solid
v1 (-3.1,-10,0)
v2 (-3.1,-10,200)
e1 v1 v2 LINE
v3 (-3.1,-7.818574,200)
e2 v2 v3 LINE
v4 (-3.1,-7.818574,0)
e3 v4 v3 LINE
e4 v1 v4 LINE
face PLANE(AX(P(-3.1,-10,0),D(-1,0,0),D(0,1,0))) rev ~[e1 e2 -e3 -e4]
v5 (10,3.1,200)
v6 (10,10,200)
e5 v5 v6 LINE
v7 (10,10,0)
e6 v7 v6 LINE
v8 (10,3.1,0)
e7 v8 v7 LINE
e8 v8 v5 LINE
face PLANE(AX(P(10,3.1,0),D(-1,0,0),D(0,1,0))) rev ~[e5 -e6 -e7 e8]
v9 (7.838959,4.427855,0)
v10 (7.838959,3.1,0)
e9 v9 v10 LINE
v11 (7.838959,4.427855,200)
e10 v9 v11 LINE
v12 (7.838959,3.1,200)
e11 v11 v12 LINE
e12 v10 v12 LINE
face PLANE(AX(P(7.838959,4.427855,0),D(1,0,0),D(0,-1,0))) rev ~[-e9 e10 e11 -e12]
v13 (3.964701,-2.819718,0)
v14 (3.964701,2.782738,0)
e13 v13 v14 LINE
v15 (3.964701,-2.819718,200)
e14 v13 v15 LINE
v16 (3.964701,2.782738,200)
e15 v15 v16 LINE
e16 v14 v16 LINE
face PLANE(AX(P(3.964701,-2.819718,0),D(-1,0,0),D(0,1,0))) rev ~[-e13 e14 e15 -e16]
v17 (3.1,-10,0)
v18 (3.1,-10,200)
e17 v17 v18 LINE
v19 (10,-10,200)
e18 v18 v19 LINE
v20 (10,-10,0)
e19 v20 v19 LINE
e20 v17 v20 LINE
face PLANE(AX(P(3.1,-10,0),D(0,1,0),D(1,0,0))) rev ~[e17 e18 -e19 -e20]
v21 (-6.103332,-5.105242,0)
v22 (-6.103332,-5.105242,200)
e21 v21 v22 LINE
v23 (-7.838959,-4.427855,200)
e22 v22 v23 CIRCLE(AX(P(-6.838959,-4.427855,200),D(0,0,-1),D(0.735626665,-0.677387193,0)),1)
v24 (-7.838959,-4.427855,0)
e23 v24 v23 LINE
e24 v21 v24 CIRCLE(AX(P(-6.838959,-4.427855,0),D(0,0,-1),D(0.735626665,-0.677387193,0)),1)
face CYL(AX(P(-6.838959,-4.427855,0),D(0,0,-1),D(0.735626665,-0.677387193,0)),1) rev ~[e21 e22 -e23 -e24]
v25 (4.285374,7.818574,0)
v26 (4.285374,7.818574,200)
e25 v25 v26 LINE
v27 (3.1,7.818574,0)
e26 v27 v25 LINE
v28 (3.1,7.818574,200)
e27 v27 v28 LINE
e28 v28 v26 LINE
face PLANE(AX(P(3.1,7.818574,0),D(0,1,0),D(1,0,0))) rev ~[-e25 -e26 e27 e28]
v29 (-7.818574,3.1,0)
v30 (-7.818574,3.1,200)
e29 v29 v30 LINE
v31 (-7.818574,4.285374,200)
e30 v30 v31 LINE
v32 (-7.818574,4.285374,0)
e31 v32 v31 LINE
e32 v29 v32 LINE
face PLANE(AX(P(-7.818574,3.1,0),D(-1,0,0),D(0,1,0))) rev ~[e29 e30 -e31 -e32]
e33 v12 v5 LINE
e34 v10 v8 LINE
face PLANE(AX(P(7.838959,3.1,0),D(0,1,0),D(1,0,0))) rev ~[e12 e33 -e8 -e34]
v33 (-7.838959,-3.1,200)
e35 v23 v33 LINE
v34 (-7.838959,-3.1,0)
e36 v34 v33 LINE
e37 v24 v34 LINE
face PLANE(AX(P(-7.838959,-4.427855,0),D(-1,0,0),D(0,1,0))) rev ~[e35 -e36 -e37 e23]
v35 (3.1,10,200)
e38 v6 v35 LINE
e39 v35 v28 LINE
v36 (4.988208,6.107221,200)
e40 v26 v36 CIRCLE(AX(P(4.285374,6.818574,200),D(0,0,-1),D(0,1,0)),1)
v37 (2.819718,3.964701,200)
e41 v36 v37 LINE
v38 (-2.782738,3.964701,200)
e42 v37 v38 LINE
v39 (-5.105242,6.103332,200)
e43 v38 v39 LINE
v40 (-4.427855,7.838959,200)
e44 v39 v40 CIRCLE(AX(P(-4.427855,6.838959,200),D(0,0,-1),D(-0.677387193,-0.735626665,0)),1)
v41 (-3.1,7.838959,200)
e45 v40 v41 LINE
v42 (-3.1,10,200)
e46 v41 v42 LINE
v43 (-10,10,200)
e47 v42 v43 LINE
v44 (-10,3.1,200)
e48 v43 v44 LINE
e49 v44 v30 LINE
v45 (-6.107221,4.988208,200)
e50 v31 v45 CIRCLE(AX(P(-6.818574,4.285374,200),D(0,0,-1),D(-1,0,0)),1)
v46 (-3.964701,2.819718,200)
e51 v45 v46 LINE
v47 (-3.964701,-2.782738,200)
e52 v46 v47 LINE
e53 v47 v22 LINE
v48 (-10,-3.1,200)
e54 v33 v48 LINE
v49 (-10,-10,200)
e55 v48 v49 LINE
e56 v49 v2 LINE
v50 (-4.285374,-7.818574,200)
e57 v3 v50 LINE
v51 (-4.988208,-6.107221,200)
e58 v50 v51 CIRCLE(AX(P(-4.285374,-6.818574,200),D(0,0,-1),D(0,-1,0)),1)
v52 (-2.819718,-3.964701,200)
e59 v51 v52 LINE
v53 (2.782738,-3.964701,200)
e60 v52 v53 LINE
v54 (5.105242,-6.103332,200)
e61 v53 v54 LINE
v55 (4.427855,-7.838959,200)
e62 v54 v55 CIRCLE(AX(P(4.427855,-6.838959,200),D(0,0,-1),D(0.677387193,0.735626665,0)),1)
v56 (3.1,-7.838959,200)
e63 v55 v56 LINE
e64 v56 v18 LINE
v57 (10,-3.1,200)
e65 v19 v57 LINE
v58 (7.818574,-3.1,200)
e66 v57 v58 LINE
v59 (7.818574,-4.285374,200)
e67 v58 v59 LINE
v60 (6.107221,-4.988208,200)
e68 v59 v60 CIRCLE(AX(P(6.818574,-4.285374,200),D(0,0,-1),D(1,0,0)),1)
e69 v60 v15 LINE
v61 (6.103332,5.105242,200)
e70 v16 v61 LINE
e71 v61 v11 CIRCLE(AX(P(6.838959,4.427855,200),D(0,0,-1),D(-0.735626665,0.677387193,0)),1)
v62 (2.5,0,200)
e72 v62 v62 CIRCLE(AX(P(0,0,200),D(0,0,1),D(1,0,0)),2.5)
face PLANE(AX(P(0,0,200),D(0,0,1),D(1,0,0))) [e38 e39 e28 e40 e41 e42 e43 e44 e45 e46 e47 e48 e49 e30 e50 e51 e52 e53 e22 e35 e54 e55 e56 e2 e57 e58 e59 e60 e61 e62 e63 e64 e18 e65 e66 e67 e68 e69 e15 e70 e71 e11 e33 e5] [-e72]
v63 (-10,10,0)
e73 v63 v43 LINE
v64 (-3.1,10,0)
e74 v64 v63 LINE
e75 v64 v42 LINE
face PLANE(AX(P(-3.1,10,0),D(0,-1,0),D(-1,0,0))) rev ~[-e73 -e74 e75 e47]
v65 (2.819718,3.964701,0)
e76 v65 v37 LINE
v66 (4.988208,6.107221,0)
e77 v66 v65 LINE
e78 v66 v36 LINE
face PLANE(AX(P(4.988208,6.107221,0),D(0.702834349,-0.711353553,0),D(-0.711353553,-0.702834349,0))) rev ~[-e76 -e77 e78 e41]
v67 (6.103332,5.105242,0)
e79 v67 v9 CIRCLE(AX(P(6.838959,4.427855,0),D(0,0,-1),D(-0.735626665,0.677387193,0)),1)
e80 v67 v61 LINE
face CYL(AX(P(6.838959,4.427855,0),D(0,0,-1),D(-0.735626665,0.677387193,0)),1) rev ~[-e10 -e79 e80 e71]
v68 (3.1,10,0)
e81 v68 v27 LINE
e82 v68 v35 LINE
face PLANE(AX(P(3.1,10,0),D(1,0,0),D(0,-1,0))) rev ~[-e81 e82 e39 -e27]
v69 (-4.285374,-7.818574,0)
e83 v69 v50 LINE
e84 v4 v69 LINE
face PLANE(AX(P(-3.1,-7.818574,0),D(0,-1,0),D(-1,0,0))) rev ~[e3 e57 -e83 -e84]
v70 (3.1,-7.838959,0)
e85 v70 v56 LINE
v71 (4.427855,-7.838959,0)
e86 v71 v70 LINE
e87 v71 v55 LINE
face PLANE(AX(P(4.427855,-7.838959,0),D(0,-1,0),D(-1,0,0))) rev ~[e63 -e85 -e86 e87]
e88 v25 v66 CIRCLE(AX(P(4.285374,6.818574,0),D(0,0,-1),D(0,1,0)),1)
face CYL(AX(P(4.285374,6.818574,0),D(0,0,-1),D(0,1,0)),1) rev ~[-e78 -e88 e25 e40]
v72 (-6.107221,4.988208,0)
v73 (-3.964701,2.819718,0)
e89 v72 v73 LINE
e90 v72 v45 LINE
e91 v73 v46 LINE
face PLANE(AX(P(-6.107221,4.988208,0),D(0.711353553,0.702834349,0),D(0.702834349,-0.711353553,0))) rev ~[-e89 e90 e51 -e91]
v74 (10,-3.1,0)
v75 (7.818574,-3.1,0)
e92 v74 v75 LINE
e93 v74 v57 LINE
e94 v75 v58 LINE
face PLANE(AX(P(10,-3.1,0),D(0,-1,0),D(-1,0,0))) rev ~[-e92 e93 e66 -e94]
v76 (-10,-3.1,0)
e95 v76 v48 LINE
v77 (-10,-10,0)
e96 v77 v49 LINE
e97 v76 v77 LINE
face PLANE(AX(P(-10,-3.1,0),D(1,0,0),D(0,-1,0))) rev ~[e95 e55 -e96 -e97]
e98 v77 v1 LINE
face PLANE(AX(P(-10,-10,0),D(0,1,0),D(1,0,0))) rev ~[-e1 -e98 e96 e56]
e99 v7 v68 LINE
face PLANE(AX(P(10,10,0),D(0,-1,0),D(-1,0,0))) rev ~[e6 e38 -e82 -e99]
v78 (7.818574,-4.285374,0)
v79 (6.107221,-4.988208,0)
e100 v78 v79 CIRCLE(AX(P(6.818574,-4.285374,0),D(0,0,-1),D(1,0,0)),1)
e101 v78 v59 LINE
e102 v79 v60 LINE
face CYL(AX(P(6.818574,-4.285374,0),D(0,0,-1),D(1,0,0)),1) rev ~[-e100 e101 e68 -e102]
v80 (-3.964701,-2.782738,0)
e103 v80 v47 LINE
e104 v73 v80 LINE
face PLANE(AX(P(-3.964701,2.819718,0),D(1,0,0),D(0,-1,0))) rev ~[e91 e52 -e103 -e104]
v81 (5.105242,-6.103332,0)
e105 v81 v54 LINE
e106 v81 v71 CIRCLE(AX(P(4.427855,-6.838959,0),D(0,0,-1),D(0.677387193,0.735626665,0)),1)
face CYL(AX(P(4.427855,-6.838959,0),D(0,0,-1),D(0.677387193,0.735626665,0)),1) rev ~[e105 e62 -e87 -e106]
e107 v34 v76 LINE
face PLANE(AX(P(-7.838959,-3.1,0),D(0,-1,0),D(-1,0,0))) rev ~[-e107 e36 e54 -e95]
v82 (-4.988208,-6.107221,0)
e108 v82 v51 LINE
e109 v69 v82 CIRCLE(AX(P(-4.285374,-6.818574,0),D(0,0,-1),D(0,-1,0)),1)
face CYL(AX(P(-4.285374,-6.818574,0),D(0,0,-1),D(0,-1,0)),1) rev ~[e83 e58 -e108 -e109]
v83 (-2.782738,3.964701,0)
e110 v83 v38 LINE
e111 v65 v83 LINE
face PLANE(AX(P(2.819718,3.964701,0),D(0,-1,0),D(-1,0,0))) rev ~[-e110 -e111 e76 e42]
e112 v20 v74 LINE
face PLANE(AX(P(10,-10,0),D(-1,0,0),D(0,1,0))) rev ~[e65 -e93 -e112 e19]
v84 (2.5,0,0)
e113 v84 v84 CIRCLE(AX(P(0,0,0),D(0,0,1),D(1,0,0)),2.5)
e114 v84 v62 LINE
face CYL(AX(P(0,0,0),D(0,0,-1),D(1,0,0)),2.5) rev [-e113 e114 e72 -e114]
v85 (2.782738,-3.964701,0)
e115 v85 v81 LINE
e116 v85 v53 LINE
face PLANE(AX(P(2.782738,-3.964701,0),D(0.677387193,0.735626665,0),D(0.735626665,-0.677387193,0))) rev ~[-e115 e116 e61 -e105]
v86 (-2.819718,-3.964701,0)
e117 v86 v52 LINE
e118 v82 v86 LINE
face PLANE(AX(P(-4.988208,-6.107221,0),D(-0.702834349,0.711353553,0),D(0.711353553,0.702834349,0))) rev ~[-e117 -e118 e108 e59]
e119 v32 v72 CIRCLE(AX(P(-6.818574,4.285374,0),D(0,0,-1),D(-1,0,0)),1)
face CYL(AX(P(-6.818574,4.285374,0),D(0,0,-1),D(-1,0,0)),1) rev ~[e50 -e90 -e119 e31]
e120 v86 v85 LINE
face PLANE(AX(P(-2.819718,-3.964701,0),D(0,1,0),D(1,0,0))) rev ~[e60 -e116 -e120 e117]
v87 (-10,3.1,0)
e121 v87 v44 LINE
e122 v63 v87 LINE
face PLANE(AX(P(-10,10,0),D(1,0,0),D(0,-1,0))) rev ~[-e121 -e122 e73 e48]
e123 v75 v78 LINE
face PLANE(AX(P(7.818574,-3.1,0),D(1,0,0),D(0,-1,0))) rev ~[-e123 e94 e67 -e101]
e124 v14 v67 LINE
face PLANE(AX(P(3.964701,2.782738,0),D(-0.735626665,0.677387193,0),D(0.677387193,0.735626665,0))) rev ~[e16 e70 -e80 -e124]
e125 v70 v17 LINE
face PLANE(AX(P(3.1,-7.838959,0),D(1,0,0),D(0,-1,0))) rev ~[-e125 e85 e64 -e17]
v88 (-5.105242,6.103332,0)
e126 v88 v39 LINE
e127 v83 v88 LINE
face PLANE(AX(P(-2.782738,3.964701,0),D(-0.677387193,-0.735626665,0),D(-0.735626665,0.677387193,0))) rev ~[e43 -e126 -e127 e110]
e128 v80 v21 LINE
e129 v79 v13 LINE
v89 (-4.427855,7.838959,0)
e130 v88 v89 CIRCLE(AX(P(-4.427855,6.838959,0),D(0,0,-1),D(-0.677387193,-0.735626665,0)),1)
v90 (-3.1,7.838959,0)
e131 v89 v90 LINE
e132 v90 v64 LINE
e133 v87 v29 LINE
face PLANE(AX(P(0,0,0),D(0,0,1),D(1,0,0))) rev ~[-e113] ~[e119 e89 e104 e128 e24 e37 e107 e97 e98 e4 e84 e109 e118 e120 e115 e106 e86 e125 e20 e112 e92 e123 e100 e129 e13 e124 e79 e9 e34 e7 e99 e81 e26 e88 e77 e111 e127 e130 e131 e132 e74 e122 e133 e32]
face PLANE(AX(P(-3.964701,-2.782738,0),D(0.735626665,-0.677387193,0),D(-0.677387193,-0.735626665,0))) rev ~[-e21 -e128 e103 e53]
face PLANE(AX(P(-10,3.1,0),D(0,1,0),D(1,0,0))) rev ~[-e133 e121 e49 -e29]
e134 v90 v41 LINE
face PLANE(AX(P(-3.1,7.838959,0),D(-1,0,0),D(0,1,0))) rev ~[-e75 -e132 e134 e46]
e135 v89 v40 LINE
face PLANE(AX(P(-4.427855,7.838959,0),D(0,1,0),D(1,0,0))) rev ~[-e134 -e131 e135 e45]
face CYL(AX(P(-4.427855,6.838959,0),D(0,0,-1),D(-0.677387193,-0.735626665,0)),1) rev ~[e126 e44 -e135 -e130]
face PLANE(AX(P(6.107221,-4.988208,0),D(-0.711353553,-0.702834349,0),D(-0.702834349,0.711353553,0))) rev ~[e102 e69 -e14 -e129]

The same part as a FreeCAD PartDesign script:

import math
import FreeCAD as App
import Part
import Sketcher
from FreeCAD import Vector

doc = App.newDocument("Part")
body = doc.addObject("PartDesign::Body", "Body")

sketch1 = doc.addObject("Sketcher::SketchObject", "Sketch")
body.addObject(sketch1)
sketch1.AttachmentSupport = (doc.XY_Plane, [""])
sketch1.MapMode = "FlatFace"
sketch1.addGeometry(Part.LineSegment(Vector(-10, -10, 0), Vector(-3.1, -10, 0)), False)
sketch1.addGeometry(Part.LineSegment(Vector(-3.1, -10, 0), Vector(-3.1, -7.818574, 0)), False)
sketch1.addGeometry(Part.LineSegment(Vector(-3.1, -7.818574, 0), Vector(-4.285374, -7.818574, 0)), False)
sketch1.addGeometry(Part.ArcOfCircle(Part.Circle(Vector(-4.285374, -6.818574, 0), Vector(0, 0, 1), 1), math.radians(134.654849), math.radians(270)), False)
sketch1.addGeometry(Part.LineSegment(Vector(-4.988208, -6.107221, 0), Vector(-2.819718, -3.964701, 0)), False)
sketch1.addGeometry(Part.LineSegment(Vector(-2.819718, -3.964701, 0), Vector(2.782738, -3.964701, 0)), False)
sketch1.addGeometry(Part.LineSegment(Vector(2.782738, -3.964701, 0), Vector(5.105242, -6.103332, 0)), False)
sketch1.addGeometry(Part.ArcOfCircle(Part.Circle(Vector(4.427855, -6.838959, 0), Vector(0, 0, 1), 1), math.radians(-90), math.radians(47.360195)), False)
sketch1.addGeometry(Part.LineSegment(Vector(4.427855, -7.838959, 0), Vector(3.1, -7.838959, 0)), False)
sketch1.addGeometry(Part.LineSegment(Vector(3.1, -7.838959, 0), Vector(3.1, -10, 0)), False)
sketch1.addGeometry(Part.LineSegment(Vector(3.1, -10, 0), Vector(10, -10, 0)), False)
sketch1.addGeometry(Part.LineSegment(Vector(10, -10, 0), Vector(10, -3.1, 0)), False)
sketch1.addGeometry(Part.LineSegment(Vector(10, -3.1, 0), Vector(7.818574, -3.1, 0)), False)
sketch1.addGeometry(Part.LineSegment(Vector(7.818574, -3.1, 0), Vector(7.818574, -4.285374, 0)), False)
sketch1.addGeometry(Part.ArcOfCircle(Part.Circle(Vector(6.818574, -4.285374, 0), Vector(0, 0, 1), 1), math.radians(-135.345151), math.radians(0)), False)
sketch1.addGeometry(Part.LineSegment(Vector(6.107221, -4.988208, 0), Vector(3.964701, -2.819718, 0)), False)
sketch1.addGeometry(Part.LineSegment(Vector(3.964701, -2.819718, 0), Vector(3.964701, 2.782738, 0)), False)
sketch1.addGeometry(Part.LineSegment(Vector(3.964701, 2.782738, 0), Vector(6.103332, 5.105242, 0)), False)
sketch1.addGeometry(Part.ArcOfCircle(Part.Circle(Vector(6.838959, 4.427855, 0), Vector(0, 0, 1), 1), math.radians(0), math.radians(137.360195)), False)
sketch1.addGeometry(Part.LineSegment(Vector(7.838959, 4.427855, 0), Vector(7.838959, 3.1, 0)), False)
sketch1.addGeometry(Part.LineSegment(Vector(7.838959, 3.1, 0), Vector(10, 3.1, 0)), False)
sketch1.addGeometry(Part.LineSegment(Vector(10, 3.1, 0), Vector(10, 10, 0)), False)
sketch1.addGeometry(Part.LineSegment(Vector(10, 10, 0), Vector(3.1, 10, 0)), False)
sketch1.addGeometry(Part.LineSegment(Vector(3.1, 10, 0), Vector(3.1, 7.818574, 0)), False)
sketch1.addGeometry(Part.LineSegment(Vector(3.1, 7.818574, 0), Vector(4.285374, 7.818574, 0)), False)
sketch1.addGeometry(Part.ArcOfCircle(Part.Circle(Vector(4.285374, 6.818574, 0), Vector(0, 0, 1), 1), math.radians(-45.345151), math.radians(90)), False)
sketch1.addGeometry(Part.LineSegment(Vector(4.988208, 6.107221, 0), Vector(2.819718, 3.964701, 0)), False)
sketch1.addGeometry(Part.LineSegment(Vector(2.819718, 3.964701, 0), Vector(-2.782738, 3.964701, 0)), False)
sketch1.addGeometry(Part.LineSegment(Vector(-2.782738, 3.964701, 0), Vector(-5.105242, 6.103332, 0)), False)
sketch1.addGeometry(Part.ArcOfCircle(Part.Circle(Vector(-4.427855, 6.838959, 0), Vector(0, 0, 1), 1), math.radians(90), math.radians(227.360195)), False)
sketch1.addGeometry(Part.LineSegment(Vector(-4.427855, 7.838959, 0), Vector(-3.1, 7.838959, 0)), False)
sketch1.addGeometry(Part.LineSegment(Vector(-3.1, 7.838959, 0), Vector(-3.1, 10, 0)), False)
sketch1.addGeometry(Part.LineSegment(Vector(-3.1, 10, 0), Vector(-10, 10, 0)), False)
sketch1.addGeometry(Part.LineSegment(Vector(-10, 10, 0), Vector(-10, 3.1, 0)), False)
sketch1.addGeometry(Part.LineSegment(Vector(-10, 3.1, 0), Vector(-7.818574, 3.1, 0)), False)
sketch1.addGeometry(Part.LineSegment(Vector(-7.818574, 3.1, 0), Vector(-7.818574, 4.285374, 0)), False)
sketch1.addGeometry(Part.ArcOfCircle(Part.Circle(Vector(-6.818574, 4.285374, 0), Vector(0, 0, 1), 1), math.radians(44.654849), math.radians(180)), False)
sketch1.addGeometry(Part.LineSegment(Vector(-6.107221, 4.988208, 0), Vector(-3.964701, 2.819718, 0)), False)
sketch1.addGeometry(Part.LineSegment(Vector(-3.964701, 2.819718, 0), Vector(-3.964701, -2.782738, 0)), False)
sketch1.addGeometry(Part.LineSegment(Vector(-3.964701, -2.782738, 0), Vector(-6.103332, -5.105242, 0)), False)
sketch1.addGeometry(Part.ArcOfCircle(Part.Circle(Vector(-6.838959, -4.427855, 0), Vector(0, 0, 1), 1), math.radians(-180), math.radians(-42.639805)), False)
sketch1.addGeometry(Part.LineSegment(Vector(-7.838959, -4.427855, 0), Vector(-7.838959, -3.1, 0)), False)
sketch1.addGeometry(Part.LineSegment(Vector(-7.838959, -3.1, 0), Vector(-10, -3.1, 0)), False)
sketch1.addGeometry(Part.LineSegment(Vector(-10, -3.1, 0), Vector(-10, -10, 0)), False)
sketch1.addGeometry(Part.Circle(Vector(0, 0, 0), Vector(0, 0, 1), 2.5), False)
sketch1.addConstraint(Sketcher.Constraint("Coincident", 0, 2, 1, 1))
sketch1.addConstraint(Sketcher.Constraint("Coincident", 1, 2, 2, 1))
sketch1.addConstraint(Sketcher.Constraint("Tangent", 2, 2, 3, 2))
sketch1.addConstraint(Sketcher.Constraint("Tangent", 3, 1, 4, 1))
sketch1.addConstraint(Sketcher.Constraint("Coincident", 4, 2, 5, 1))
sketch1.addConstraint(Sketcher.Constraint("Coincident", 5, 2, 6, 1))
sketch1.addConstraint(Sketcher.Constraint("Tangent", 6, 2, 7, 2))
sketch1.addConstraint(Sketcher.Constraint("Tangent", 7, 1, 8, 1))
sketch1.addConstraint(Sketcher.Constraint("Coincident", 8, 2, 9, 1))
sketch1.addConstraint(Sketcher.Constraint("Coincident", 9, 2, 10, 1))
sketch1.addConstraint(Sketcher.Constraint("Coincident", 10, 2, 11, 1))
sketch1.addConstraint(Sketcher.Constraint("Coincident", 11, 2, 12, 1))
sketch1.addConstraint(Sketcher.Constraint("Coincident", 12, 2, 13, 1))
sketch1.addConstraint(Sketcher.Constraint("Tangent", 13, 2, 14, 2))
sketch1.addConstraint(Sketcher.Constraint("Tangent", 14, 1, 15, 1))
sketch1.addConstraint(Sketcher.Constraint("Coincident", 15, 2, 16, 1))
sketch1.addConstraint(Sketcher.Constraint("Coincident", 16, 2, 17, 1))
sketch1.addConstraint(Sketcher.Constraint("Tangent", 17, 2, 18, 2))
sketch1.addConstraint(Sketcher.Constraint("Tangent", 18, 1, 19, 1))
sketch1.addConstraint(Sketcher.Constraint("Coincident", 19, 2, 20, 1))
sketch1.addConstraint(Sketcher.Constraint("Coincident", 20, 2, 21, 1))
sketch1.addConstraint(Sketcher.Constraint("Coincident", 21, 2, 22, 1))
sketch1.addConstraint(Sketcher.Constraint("Coincident", 22, 2, 23, 1))
sketch1.addConstraint(Sketcher.Constraint("Coincident", 23, 2, 24, 1))
sketch1.addConstraint(Sketcher.Constraint("Tangent", 24, 2, 25, 2))
sketch1.addConstraint(Sketcher.Constraint("Tangent", 25, 1, 26, 1))
sketch1.addConstraint(Sketcher.Constraint("Coincident", 26, 2, 27, 1))
sketch1.addConstraint(Sketcher.Constraint("Coincident", 27, 2, 28, 1))
sketch1.addConstraint(Sketcher.Constraint("Tangent", 28, 2, 29, 2))
sketch1.addConstraint(Sketcher.Constraint("Tangent", 29, 1, 30, 1))
sketch1.addConstraint(Sketcher.Constraint("Coincident", 30, 2, 31, 1))
sketch1.addConstraint(Sketcher.Constraint("Coincident", 31, 2, 32, 1))
sketch1.addConstraint(Sketcher.Constraint("Coincident", 32, 2, 33, 1))
sketch1.addConstraint(Sketcher.Constraint("Coincident", 33, 2, 34, 1))
sketch1.addConstraint(Sketcher.Constraint("Coincident", 34, 2, 35, 1))
sketch1.addConstraint(Sketcher.Constraint("Tangent", 35, 2, 36, 2))
sketch1.addConstraint(Sketcher.Constraint("Tangent", 36, 1, 37, 1))
sketch1.addConstraint(Sketcher.Constraint("Coincident", 37, 2, 38, 1))
sketch1.addConstraint(Sketcher.Constraint("Coincident", 38, 2, 39, 1))
sketch1.addConstraint(Sketcher.Constraint("Tangent", 39, 2, 40, 2))
sketch1.addConstraint(Sketcher.Constraint("Tangent", 40, 1, 41, 1))
sketch1.addConstraint(Sketcher.Constraint("Coincident", 41, 2, 42, 1))
sketch1.addConstraint(Sketcher.Constraint("Coincident", 42, 2, 43, 1))
sketch1.addConstraint(Sketcher.Constraint("Coincident", 43, 2, 0, 1))
sketch1.addConstraint(Sketcher.Constraint("Horizontal", 0))
sketch1.addConstraint(Sketcher.Constraint("Vertical", 1))
sketch1.addConstraint(Sketcher.Constraint("Horizontal", 2))
sketch1.addConstraint(Sketcher.Constraint("Horizontal", 5))
sketch1.addConstraint(Sketcher.Constraint("Horizontal", 8))
sketch1.addConstraint(Sketcher.Constraint("Vertical", 9))
sketch1.addConstraint(Sketcher.Constraint("Horizontal", 10))
sketch1.addConstraint(Sketcher.Constraint("Vertical", 11))
sketch1.addConstraint(Sketcher.Constraint("Horizontal", 12))
sketch1.addConstraint(Sketcher.Constraint("Vertical", 13))
sketch1.addConstraint(Sketcher.Constraint("Vertical", 16))
sketch1.addConstraint(Sketcher.Constraint("Vertical", 19))
sketch1.addConstraint(Sketcher.Constraint("Horizontal", 20))
sketch1.addConstraint(Sketcher.Constraint("Vertical", 21))
sketch1.addConstraint(Sketcher.Constraint("Horizontal", 22))
sketch1.addConstraint(Sketcher.Constraint("Vertical", 23))
sketch1.addConstraint(Sketcher.Constraint("Horizontal", 24))
sketch1.addConstraint(Sketcher.Constraint("Horizontal", 27))
sketch1.addConstraint(Sketcher.Constraint("Horizontal", 30))
sketch1.addConstraint(Sketcher.Constraint("Vertical", 31))
sketch1.addConstraint(Sketcher.Constraint("Horizontal", 32))
sketch1.addConstraint(Sketcher.Constraint("Vertical", 33))
sketch1.addConstraint(Sketcher.Constraint("Horizontal", 34))
sketch1.addConstraint(Sketcher.Constraint("Vertical", 35))
sketch1.addConstraint(Sketcher.Constraint("Vertical", 38))
sketch1.addConstraint(Sketcher.Constraint("Vertical", 41))
sketch1.addConstraint(Sketcher.Constraint("Horizontal", 42))
sketch1.addConstraint(Sketcher.Constraint("Vertical", 43))
sketch1.addConstraint(Sketcher.Constraint("Coincident", 44, 3, -1, 1))
sketch1.addConstraint(Sketcher.Constraint("Equal", 3, 7))
sketch1.addConstraint(Sketcher.Constraint("Equal", 7, 14))
sketch1.addConstraint(Sketcher.Constraint("Equal", 14, 18))
sketch1.addConstraint(Sketcher.Constraint("Equal", 18, 25))
sketch1.addConstraint(Sketcher.Constraint("Equal", 25, 29))
sketch1.addConstraint(Sketcher.Constraint("Equal", 29, 36))
sketch1.addConstraint(Sketcher.Constraint("Equal", 36, 40))
sketch1.addConstraint(Sketcher.Constraint("Symmetric", 3, 3, 25, 3, -1, 1))
sketch1.addConstraint(Sketcher.Constraint("Symmetric", 7, 3, 29, 3, -1, 1))
sketch1.addConstraint(Sketcher.Constraint("Symmetric", 14, 3, 36, 3, -1, 1))
sketch1.addConstraint(Sketcher.Constraint("Symmetric", 18, 3, 40, 3, -1, 1))
sketch1.addConstraint(Sketcher.Constraint("Symmetric", 0, 2, 22, 2, -1, 1))
sketch1.addConstraint(Sketcher.Constraint("Symmetric", 4, 2, 26, 2, -1, 1))
sketch1.addConstraint(Sketcher.Constraint("Symmetric", 9, 2, 31, 2, -1, 1))
sketch1.addConstraint(Sketcher.Constraint("Symmetric", 11, 2, 33, 2, -1, 1))
sketch1.addConstraint(Sketcher.Constraint("Symmetric", 15, 2, 37, 2, -1, 1))
sketch1.addConstraint(Sketcher.Constraint("Symmetric", 20, 2, 42, 2, -1, 1))
sketch1.addConstraint(Sketcher.Constraint("Symmetric", 0, 2, 9, 2, -2))
sketch1.addConstraint(Sketcher.Constraint("Symmetric", 20, 2, 33, 2, -2))
sketch1.addConstraint(Sketcher.Constraint("Perpendicular", 4, 15))
sketch1.addConstraint(Sketcher.Constraint("Perpendicular", 6, 17))
sketch1.addConstraint(Sketcher.Constraint("Perpendicular", 17, 28))
sketch1.addConstraint(Sketcher.Constraint("Perpendicular", 28, 39))
sketch1.addConstraint(Sketcher.Constraint("Equal", 34, 1))
sketch1.addConstraint(Sketcher.Constraint("Equal", 42, 9))
sketch1.addConstraint(Sketcher.Constraint("Equal", 32, 11))
sketch1.addConstraint(Sketcher.Constraint("Equal", 24, 13))
sketch1.addConstraint(Sketcher.Constraint("Equal", 27, 16))
sketch1.addConstraint(Sketcher.Constraint("Equal", 30, 19))
sketch1.addConstraint(Sketcher.Constraint("Equal", 4, 15))
sketch1.addConstraint(Sketcher.Constraint("Diameter", 44, 5.0))
sketch1.addConstraint(Sketcher.Constraint("Radius", 3, 1.0))
sketch1.addConstraint(Sketcher.Constraint("DistanceX", 0, 1, 0, 2, 6.9))
sketch1.addConstraint(Sketcher.Constraint("DistanceY", 0, 2, -1, 1, 10.0))
sketch1.addConstraint(Sketcher.Constraint("Distance", 4, 3.0484))
sketch1.addConstraint(Sketcher.Constraint("DistanceX", 20, 1, 20, 2, 2.161041))
sketch1.addConstraint(Sketcher.Constraint("DistanceY", 4, 2, -1, 1, 3.964701))
sketch1.addConstraint(Sketcher.Constraint("DistanceY", 3, 3, 14, 3, 2.5332))
sketch1.addConstraint(Sketcher.Constraint("DistanceX", 2, 2, 2, 1, 1.185374))
sketch1.addConstraint(Sketcher.Constraint("DistanceX", 5, 1, 5, 2, 5.602456))
sketch1.addConstraint(Sketcher.Constraint("DistanceX", 8, 2, 8, 1, 1.327855))
pad1 = doc.addObject("PartDesign::Pad", "Pad")
body.addObject(pad1)
pad1.Profile = sketch1
pad1.Length = 200

doc.recompute()
